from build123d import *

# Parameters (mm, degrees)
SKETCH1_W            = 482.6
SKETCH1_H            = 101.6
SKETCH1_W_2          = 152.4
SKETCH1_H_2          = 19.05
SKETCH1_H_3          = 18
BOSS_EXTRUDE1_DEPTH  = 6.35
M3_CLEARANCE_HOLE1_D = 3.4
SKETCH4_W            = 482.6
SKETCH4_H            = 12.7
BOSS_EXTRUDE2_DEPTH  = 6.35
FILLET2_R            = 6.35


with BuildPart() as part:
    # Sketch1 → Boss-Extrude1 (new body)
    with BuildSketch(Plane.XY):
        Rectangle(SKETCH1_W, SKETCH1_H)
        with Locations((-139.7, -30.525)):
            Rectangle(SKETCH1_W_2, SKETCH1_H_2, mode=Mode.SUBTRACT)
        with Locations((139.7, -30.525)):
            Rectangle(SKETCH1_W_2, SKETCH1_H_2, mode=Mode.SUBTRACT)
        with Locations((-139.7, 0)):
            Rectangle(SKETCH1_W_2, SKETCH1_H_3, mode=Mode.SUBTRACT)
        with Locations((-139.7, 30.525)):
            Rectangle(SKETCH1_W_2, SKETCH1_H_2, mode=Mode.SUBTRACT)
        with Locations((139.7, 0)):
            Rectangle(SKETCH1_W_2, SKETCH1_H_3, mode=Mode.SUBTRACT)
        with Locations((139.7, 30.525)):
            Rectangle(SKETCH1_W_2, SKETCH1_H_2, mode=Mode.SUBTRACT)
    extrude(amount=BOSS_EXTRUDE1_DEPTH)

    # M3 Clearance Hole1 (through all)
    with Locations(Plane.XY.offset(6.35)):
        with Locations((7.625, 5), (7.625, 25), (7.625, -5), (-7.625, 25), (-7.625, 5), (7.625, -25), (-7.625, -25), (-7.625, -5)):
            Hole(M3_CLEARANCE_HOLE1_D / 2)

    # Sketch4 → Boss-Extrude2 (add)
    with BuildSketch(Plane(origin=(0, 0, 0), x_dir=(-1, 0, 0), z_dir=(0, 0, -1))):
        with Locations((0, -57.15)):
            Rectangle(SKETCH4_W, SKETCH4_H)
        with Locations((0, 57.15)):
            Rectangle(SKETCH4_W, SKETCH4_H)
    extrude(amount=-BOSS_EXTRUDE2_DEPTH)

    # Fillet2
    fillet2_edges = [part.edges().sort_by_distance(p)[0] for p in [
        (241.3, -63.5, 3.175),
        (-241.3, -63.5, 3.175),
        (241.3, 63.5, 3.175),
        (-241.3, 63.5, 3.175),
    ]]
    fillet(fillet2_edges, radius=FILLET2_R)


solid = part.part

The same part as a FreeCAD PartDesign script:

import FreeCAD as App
import Part
import Sketcher

V = App.Vector
Q = App.Units.Quantity


def edges_at(feature, points):
    """Names of the edges that pass closest to the given points."""
    edges = feature.Shape.Edges
    near = lambda p: min(range(len(edges)), key=lambda i: edges[i].distToShape(Part.Vertex(*p))[0])
    return sorted({f"Edge{near(p) + 1}" for p in points})


def add_polygon(sketch, points):
    """Adds a closed chain of lines whose ends are joined by coincident constraints."""
    first, n = sketch.GeometryCount, len(points)
    for a, b in zip(points, points[1:] + points[:1]):
        sketch.addGeometry(Part.LineSegment(App.Vector(*a, 0), App.Vector(*b, 0)), False)
    for i in range(n):
        sketch.addConstraint(Sketcher.Constraint("Coincident", first + i, 2, first + (i + 1) % n, 1))

doc = App.newDocument("Part")
body = doc.addObject("PartDesign::Body", "Body")

sketch1 = body.newObject("Sketcher::SketchObject", "Sketch")
sketch1.AttachmentSupport = (doc.getObject("XY_Plane"), [""])
sketch1.MapMode = "FlatFace"
add_polygon(sketch1, [(-241, 51), (-241, -51), (241, -51), (241, 51)])
add_polygon(sketch1, [(-64, -40), (-216, -40), (-216, -21), (-64, -21)])
add_polygon(sketch1, [(216, -40), (64, -40), (64, -21), (216, -21)])
add_polygon(sketch1, [(-64, -9), (-216, -9), (-216, 9), (-64, 9)])
add_polygon(sketch1, [(-64, 21), (-216, 21), (-216, 40), (-64, 40)])
add_polygon(sketch1, [(216, -9), (64, -9), (64, 9), (216, 9)])
add_polygon(sketch1, [(216, 21), (64, 21), (64, 40), (216, 40)])
sketch1.addConstraint(Sketcher.Constraint("Vertical", 0))
sketch1.addConstraint(Sketcher.Constraint("Horizontal", 1))
sketch1.addConstraint(Sketcher.Constraint("Vertical", 2))
sketch1.addConstraint(Sketcher.Constraint("Horizontal", 3))
sketch1.addConstraint(Sketcher.Constraint("Horizontal", 4))
sketch1.addConstraint(Sketcher.Constraint("Vertical", 5))
sketch1.addConstraint(Sketcher.Constraint("Horizontal", 6))
sketch1.addConstraint(Sketcher.Constraint("Vertical", 7))
sketch1.addConstraint(Sketcher.Constraint("Horizontal", 8))
sketch1.addConstraint(Sketcher.Constraint("Vertical", 9))
sketch1.addConstraint(Sketcher.Constraint("Horizontal", 10))
sketch1.addConstraint(Sketcher.Constraint("Vertical", 11))
sketch1.addConstraint(Sketcher.Constraint("Horizontal", 12))
sketch1.addConstraint(Sketcher.Constraint("Vertical", 13))
sketch1.addConstraint(Sketcher.Constraint("Horizontal", 14))
sketch1.addConstraint(Sketcher.Constraint("Vertical", 15))
sketch1.addConstraint(Sketcher.Constraint("Horizontal", 16))
sketch1.addConstraint(Sketcher.Constraint("Vertical", 17))
sketch1.addConstraint(Sketcher.Constraint("Horizontal", 18))
sketch1.addConstraint(Sketcher.Constraint("Vertical", 19))
sketch1.addConstraint(Sketcher.Constraint("Horizontal", 20))
sketch1.addConstraint(Sketcher.Constraint("Vertical", 21))
sketch1.addConstraint(Sketcher.Constraint("Horizontal", 22))
sketch1.addConstraint(Sketcher.Constraint("Vertical", 23))
sketch1.addConstraint(Sketcher.Constraint("Horizontal", 24))
sketch1.addConstraint(Sketcher.Constraint("Vertical", 25))
sketch1.addConstraint(Sketcher.Constraint("Horizontal", 26))
sketch1.addConstraint(Sketcher.Constraint("Vertical", 27))
sketch1.addConstraint(Sketcher.Constraint("Symmetric", 0, 2, 2, 2, -1, 1))
sketch1.addConstraint(Sketcher.Constraint("Symmetric", 10, 2, 16, 2, -1, 1))
sketch1.addConstraint(Sketcher.Constraint("Symmetric", 8, 2, 18, 2, -1, 1))
sketch1.addConstraint(Sketcher.Constraint("Symmetric", 14, 2, 20, 2, -1, 1))
sketch1.addConstraint(Sketcher.Constraint("Symmetric", 12, 2, 22, 2, -1, 1))
sketch1.addConstraint(Sketcher.Constraint("Symmetric", 6, 2, 24, 2, -1, 1))
sketch1.addConstraint(Sketcher.Constraint("Symmetric", 4, 2, 26, 2, -1, 1))
sketch1.addConstraint(Sketcher.Constraint("Symmetric", 7, 2, 8, 2, -2))
sketch1.addConstraint(Sketcher.Constraint("Symmetric", 5, 2, 10, 2, -2))
sketch1.addConstraint(Sketcher.Constraint("Horizontal", 15, 2, 20, 2))
sketch1.addConstraint(Sketcher.Constraint("Vertical", 5, 2, 12, 2))
sketch1.addConstraint(Sketcher.Constraint("Vertical", 7, 2, 14, 2))
sketch1.addConstraint(Sketcher.Constraint("DistanceX", 1, 1, 1, 2, Q("19 in")))
sketch1.addConstraint(Sketcher.Constraint("DistanceX", 4, 2, 4, 1, Q("6 in")))
sketch1.addConstraint(Sketcher.Constraint("DistanceY", 0, 2, 0, 1, Q("4 in")))
sketch1.addConstraint(Sketcher.Constraint("DistanceX", 0, 2, 4, 2, Q("1 in")))
sketch1.addConstraint(Sketcher.Constraint("DistanceY", 5, 1, 5, 2, Q("0.75 in")))
sketch1.addConstraint(Sketcher.Constraint("DistanceY", 13, 1, 13, 2, Q("18 mm")))
sketch1.addConstraint(Sketcher.Constraint("DistanceY", 4, 2, -1, 1, Q("40.05 mm")))
pad1 = body.newObject("PartDesign::Pad", "Pad")
pad1.Profile = sketch1
pad1.Length = Q("0.25 in")

sketch2 = body.newObject("Sketcher::SketchObject", "Sketch001")
sketch2.AttachmentSupport = (doc.getObject("XY_Plane"), [""])
sketch2.MapMode = "FlatFace"
sketch2.AttachmentOffset = App.Placement(V(0, 0, 0.25 * 25.4), App.Rotation())
sketch2.addGeometry(Part.Circle(V(7.6, 5, 0), V(0, 0, 1), 1.7), False)
sketch2.addGeometry(Part.Circle(V(7.6, 25, 0), V(0, 0, 1), 1.7), False)
sketch2.addGeometry(Part.Circle(V(7.6, -5, 0), V(0, 0, 1), 1.7), False)
sketch2.addGeometry(Part.Circle(V(-7.6, 25, 0), V(0, 0, 1), 1.7), False)
sketch2.addGeometry(Part.Circle(V(-7.6, 5, 0), V(0, 0, 1), 1.7), False)
sketch2.addGeometry(Part.Circle(V(7.6, -25, 0), V(0, 0, 1), 1.7), False)
sketch2.addGeometry(Part.Circle(V(-7.6, -25, 0), V(0, 0, 1), 1.7), False)
sketch2.addGeometry(Part.Circle(V(-7.6, -5, 0), V(0, 0, 1), 1.7), False)
sketch2.addConstraint(Sketcher.Constraint("Equal", 0, 1))
sketch2.addConstraint(Sketcher.Constraint("Equal", 1, 2))
sketch2.addConstraint(Sketcher.Constraint("Equal", 2, 3))
sketch2.addConstraint(Sketcher.Constraint("Equal", 3, 4))
sketch2.addConstraint(Sketcher.Constraint("Equal", 4, 5))
sketch2.addConstraint(Sketcher.Constraint("Equal", 5, 6))
sketch2.addConstraint(Sketcher.Constraint("Equal", 6, 7))
sketch2.addConstraint(Sketcher.Constraint("Symmetric", 2, 3, 4, 3, -1, 1))
sketch2.addConstraint(Sketcher.Constraint("Symmetric", 3, 3, 5, 3, -1, 1))
sketch2.addConstraint(Sketcher.Constraint("Symmetric", 1, 3, 6, 3, -1, 1))
sketch2.addConstraint(Sketcher.Constraint("Symmetric", 0, 3, 7, 3, -1, 1))
sketch2.addConstraint(Sketcher.Constraint("Symmetric", 1, 3, 3, 3, -2))
sketch2.addConstraint(Sketcher.Constraint("Symmetric", 0, 3, 4, 3, -2))
sketch2.addConstraint(Sketcher.Constraint("Vertical", 0, 3, 1, 3))
sketch2.addConstraint(Sketcher.Constraint("Diameter", 0, Q("3.4 mm")))
sketch2.addConstraint(Sketcher.Constraint("DistanceX", -1, 1, 0, 3, Q("7.625 mm")))
sketch2.addConstraint(Sketcher.Constraint("DistanceY", -1, 1, 0, 3, Q("5 mm")))
sketch2.addConstraint(Sketcher.Constraint("DistanceY", -1, 1, 1, 3, Q("25 mm")))
doc.recompute()
hole = body.newObject("PartDesign::Hole", "Hole")
hole.Profile = sketch2
hole.ThreadType = "None"
hole.Diameter = 3.4
hole.DepthType = "ThroughAll"

sketch3 = body.newObject("Sketcher::SketchObject", "Sketch002")
sketch3.AttachmentSupport = (doc.getObject("XY_Plane"), [""])
sketch3.MapMode = "FlatFace"
add_polygon(sketch3, [(241, -51), (241, -64), (-241, -64), (-241, -51)])
add_polygon(sketch3, [(241, 64), (241, 51), (-241, 51), (-241, 64)])
sketch3.addConstraint(Sketcher.Constraint("Vertical", 0))
sketch3.addConstraint(Sketcher.Constraint("Horizontal", 1))
sketch3.addConstraint(Sketcher.Constraint("Vertical", 2))
sketch3.addConstraint(Sketcher.Constraint("Horizontal", 3))
sketch3.addConstraint(Sketcher.Constraint("Vertical", 4))
sketch3.addConstraint(Sketcher.Constraint("Horizontal", 5))
sketch3.addConstraint(Sketcher.Constraint("Vertical", 6))
sketch3.addConstraint(Sketcher.Constraint("Horizontal", 7))
sketch3.addConstraint(Sketcher.Constraint("Symmetric", 2, 2, 4, 2, -1, 1))
sketch3.addConstraint(Sketcher.Constraint("Symmetric", 0, 2, 6, 2, -1, 1))
sketch3.addConstraint(Sketcher.Constraint("Vertical", 3, 2, 4, 2))
sketch3.addConstraint(Sketcher.Constraint("DistanceX", 1, 2, 1, 1, Q("19 in")))
sketch3.addConstraint(Sketcher.Constraint("DistanceY", 0, 2, 0, 1, Q("0.5 in")))
sketch3.addConstraint(Sketcher.Constraint("DistanceY", 2, 2, -1, 1, Q("2 in")))
pad2 = body.newObject("PartDesign::Pad", "Pad001")
pad2.Profile = sketch3
pad2.Length = Q("0.25 in")
doc.recompute()

fillet = body.newObject("PartDesign::Fillet", "Fillet")
fillet.Base = (pad2, edges_at(pad2, [
    (241.3, -63.5, 3.175),
    (-241.3, -63.5, 3.175),
    (241.3, 63.5, 3.175),
    (-241.3, 63.5, 3.175),
]))
fillet.Radius = Q("0.25 in")

doc.recompute()
